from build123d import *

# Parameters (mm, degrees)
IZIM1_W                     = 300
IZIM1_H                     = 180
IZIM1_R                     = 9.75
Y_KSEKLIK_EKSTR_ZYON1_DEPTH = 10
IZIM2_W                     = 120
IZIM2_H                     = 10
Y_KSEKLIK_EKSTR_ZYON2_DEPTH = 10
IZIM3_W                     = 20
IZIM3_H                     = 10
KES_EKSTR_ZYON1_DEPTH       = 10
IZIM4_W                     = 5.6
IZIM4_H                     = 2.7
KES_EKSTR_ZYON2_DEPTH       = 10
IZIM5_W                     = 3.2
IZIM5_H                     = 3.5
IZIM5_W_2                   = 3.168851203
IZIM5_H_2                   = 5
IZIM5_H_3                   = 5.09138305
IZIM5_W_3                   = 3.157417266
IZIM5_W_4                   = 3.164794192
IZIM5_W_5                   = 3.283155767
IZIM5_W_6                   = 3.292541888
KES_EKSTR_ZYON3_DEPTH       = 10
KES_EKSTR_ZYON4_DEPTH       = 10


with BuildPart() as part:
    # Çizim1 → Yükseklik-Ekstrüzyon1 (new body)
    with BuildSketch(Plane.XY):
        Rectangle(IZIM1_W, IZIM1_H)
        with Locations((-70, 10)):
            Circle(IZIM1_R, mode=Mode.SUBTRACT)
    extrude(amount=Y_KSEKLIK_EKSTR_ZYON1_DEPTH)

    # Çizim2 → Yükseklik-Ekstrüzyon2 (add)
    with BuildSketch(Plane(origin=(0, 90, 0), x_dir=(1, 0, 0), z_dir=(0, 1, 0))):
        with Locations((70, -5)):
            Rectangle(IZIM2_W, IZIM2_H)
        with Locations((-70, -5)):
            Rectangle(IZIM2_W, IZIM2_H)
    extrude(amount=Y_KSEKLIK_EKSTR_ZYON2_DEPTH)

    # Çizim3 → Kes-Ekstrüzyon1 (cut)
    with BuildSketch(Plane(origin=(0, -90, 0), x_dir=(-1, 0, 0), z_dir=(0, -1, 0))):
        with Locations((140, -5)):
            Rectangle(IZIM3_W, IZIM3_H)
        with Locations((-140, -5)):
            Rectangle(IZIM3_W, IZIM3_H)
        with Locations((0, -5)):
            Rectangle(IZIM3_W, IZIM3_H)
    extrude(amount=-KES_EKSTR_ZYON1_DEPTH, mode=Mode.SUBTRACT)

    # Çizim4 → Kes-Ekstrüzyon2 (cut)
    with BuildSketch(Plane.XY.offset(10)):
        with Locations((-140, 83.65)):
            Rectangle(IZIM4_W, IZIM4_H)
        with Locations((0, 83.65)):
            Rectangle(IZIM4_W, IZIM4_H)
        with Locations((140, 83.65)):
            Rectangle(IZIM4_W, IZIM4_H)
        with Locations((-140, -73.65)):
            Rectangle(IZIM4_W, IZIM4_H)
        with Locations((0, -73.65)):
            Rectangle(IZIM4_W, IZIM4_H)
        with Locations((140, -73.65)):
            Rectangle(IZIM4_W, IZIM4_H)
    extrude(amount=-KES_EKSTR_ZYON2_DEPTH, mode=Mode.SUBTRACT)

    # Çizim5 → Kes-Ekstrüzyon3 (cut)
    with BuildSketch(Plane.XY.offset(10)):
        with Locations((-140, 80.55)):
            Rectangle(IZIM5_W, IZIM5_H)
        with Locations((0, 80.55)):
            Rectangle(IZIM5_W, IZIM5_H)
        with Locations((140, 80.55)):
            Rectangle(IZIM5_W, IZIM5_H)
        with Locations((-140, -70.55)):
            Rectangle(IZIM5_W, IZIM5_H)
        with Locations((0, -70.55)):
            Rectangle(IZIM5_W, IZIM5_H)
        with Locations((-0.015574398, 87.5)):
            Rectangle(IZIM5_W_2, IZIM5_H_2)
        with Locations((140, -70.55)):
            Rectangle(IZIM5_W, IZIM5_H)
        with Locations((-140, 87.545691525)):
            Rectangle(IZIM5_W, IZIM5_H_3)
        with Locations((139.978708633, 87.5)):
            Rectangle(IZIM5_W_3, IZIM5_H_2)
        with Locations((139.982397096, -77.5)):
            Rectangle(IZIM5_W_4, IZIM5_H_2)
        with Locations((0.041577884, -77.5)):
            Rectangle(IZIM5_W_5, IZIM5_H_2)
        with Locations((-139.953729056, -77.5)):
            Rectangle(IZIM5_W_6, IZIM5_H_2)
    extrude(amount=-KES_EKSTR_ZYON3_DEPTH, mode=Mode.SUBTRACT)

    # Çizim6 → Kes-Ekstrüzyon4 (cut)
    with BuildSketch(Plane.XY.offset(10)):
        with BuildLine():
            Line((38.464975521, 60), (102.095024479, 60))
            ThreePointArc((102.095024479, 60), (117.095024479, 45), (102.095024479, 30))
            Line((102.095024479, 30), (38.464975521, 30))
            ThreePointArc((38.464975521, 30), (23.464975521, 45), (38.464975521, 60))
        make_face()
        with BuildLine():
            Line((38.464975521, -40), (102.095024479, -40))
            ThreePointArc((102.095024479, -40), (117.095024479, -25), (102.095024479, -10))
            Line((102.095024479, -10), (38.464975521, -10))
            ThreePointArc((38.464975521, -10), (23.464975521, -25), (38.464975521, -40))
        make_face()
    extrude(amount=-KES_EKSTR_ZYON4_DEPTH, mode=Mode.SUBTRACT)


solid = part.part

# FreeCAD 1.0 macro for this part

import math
import FreeCAD as App
import Part
import Sketcher

V = App.Vector
Q = App.Units.Quantity


def add_polygon(sketch, points):
    """Adds a closed chain of lines whose ends are joined by coincident constraints."""
    first, n = sketch.GeometryCount, len(points)
    for a, b in zip(points, points[1:] + points[:1]):
        sketch.addGeometry(Part.LineSegment(App.Vector(*a, 0), App.Vector(*b, 0)), False)
    for i in range(n):
        sketch.addConstraint(Sketcher.Constraint("Coincident", first + i, 2, first + (i + 1) % n, 1))

doc = App.newDocument("Part")
body = doc.addObject("PartDesign::Body", "Body")

# Sketch on XY plane
sketch1 = body.newObject("Sketcher::SketchObject", "Sketch")
sketch1.AttachmentSupport = (doc.getObject("XY_Plane"), [""])
sketch1.MapMode = "FlatFace"
add_polygon(sketch1, [(-150, 90), (-150, -90), (150, -90), (150, 90)])  # lines 0-3
sketch1.addGeometry(Part.Circle(V(-70, 10, 0), V(0, 0, 1), 10), False)  # 4
sketch1.addConstraint([
    Sketcher.Constraint("Vertical", 0),
    Sketcher.Constraint("Horizontal", 1),
    Sketcher.Constraint("Vertical", 2),
    Sketcher.Constraint("Horizontal", 3),
    Sketcher.Constraint("Symmetric", 0, 2, 2, 2, -1, 1),
    Sketcher.Constraint("Diameter", 4, Q("19.5 mm")),
    Sketcher.Constraint("DistanceX", 1, 1, 1, 2, Q("300 mm")),
    Sketcher.Constraint("DistanceY", 0, 2, 0, 1, Q("180 mm")),
    Sketcher.Constraint("DistanceX", 4, 3, -1, 1, Q("70 mm")),
    Sketcher.Constraint("DistanceY", -1, 1, 4, 3, Q("10 mm")),
])
pad1 = body.newObject("PartDesign::Pad", "Pad")
pad1.Profile = sketch1
pad1.Length = 10

# Sketch on XZ plane
sketch2 = body.newObject("Sketcher::SketchObject", "Sketch001")
sketch2.AttachmentSupport = (doc.getObject("XZ_Plane"), [""])
sketch2.MapMode = "FlatFace"
sketch2.AttachmentOffset = App.Placement(V(0, 0, -90), App.Rotation())
add_polygon(sketch2, [(10, 0), (10, 10), (130, 10), (130, 0)])  # lines 0-3
add_polygon(sketch2, [(-130, 0), (-130, 10), (-10, 10), (-10, 0)])  # lines 4-7
sketch2.addConstraint([
    Sketcher.Constraint("Vertical", 0),
    Sketcher.Constraint("Horizontal", 1),
    Sketcher.Constraint("Vertical", 2),
    Sketcher.Constraint("Horizontal", 3),
    Sketcher.Constraint("Vertical", 4),
    Sketcher.Constraint("Horizontal", 5),
    Sketcher.Constraint("Vertical", 6),
    Sketcher.Constraint("Horizontal", 7),
    Sketcher.Constraint("Symmetric", 3, 2, 6, 2, -1, 1),
    Sketcher.Constraint("Symmetric", 1, 2, 4, 2, -2),
    Sketcher.Constraint("PointOnObject", 2, 2, -1),
    Sketcher.Constraint("DistanceX", 1, 1, 1, 2, Q("120 mm")),
    Sketcher.Constraint("DistanceY", 0, 1, 0, 2, Q("10 mm")),
    Sketcher.Constraint("DistanceX", -1, 1, 0, 2, Q("10 mm")),
])
pad2 = body.newObject("PartDesign::Pad", "Pad001")
pad2.Profile = sketch2
pad2.Length = 10
pad2.Reversed = True

# Sketch on XZ plane
sketch3 = body.newObject("Sketcher::SketchObject", "Sketch002")
sketch3.AttachmentSupport = (doc.getObject("XZ_Plane"), [""])
sketch3.MapMode = "FlatFace"
sketch3.AttachmentOffset = App.Placement(V(0, 0, 90), App.Rotation())
add_polygon(sketch3, [(-130, 0), (-130, 10), (-150, 10), (-150, 0)])  # lines 0-3
add_polygon(sketch3, [(150, 0), (150, 10), (130, 10), (130, 0)])  # lines 4-7
add_polygon(sketch3, [(10, 0), (10, 10), (-10, 10), (-10, 0)])  # lines 8-11
sketch3.addConstraint([
    Sketcher.Constraint("Vertical", 0),
    Sketcher.Constraint("Horizontal", 1),
    Sketcher.Constraint("Vertical", 2),
    Sketcher.Constraint("Horizontal", 3),
    Sketcher.Constraint("Vertical", 4),
    Sketcher.Constraint("Horizontal", 5),
    Sketcher.Constraint("Vertical", 6),
    Sketcher.Constraint("Horizontal", 7),
    Sketcher.Constraint("Vertical", 8),
    Sketcher.Constraint("Horizontal", 9),
    Sketcher.Constraint("Vertical", 10),
    Sketcher.Constraint("Horizontal", 11),
    Sketcher.Constraint("Symmetric", 3, 2, 6, 2, -1, 1),
    Sketcher.Constraint("Symmetric", 10, 2, 11, 2, -1, 1),
    Sketcher.Constraint("Symmetric", 1, 2, 4, 2, -2),
    Sketcher.Constraint("PointOnObject", 2, 2, -1),
    Sketcher.Constraint("Horizontal", 5, 2, 8, 2),
    Sketcher.Constraint("Equal", 7, 9),
    Sketcher.Constraint("DistanceX", 1, 2, 1, 1, Q("20 mm")),
    Sketcher.Constraint("DistanceY", 0, 1, 0, 2, Q("10 mm")),
    Sketcher.Constraint("DistanceX", 0, 2, -1, 1, Q("130 mm")),
])
pocket1 = body.newObject("PartDesign::Pocket", "Pocket")
pocket1.Profile = sketch3
pocket1.Length = 10

# Sketch on XY plane
sketch4 = body.newObject("Sketcher::SketchObject", "Sketch003")
sketch4.AttachmentSupport = (doc.getObject("XY_Plane"), [""])
sketch4.MapMode = "FlatFace"
sketch4.AttachmentOffset = App.Placement(V(0, 0, 10), App.Rotation())
add_polygon(sketch4, [(-142.8, 85), (-142.8, 82.3), (-137.2, 82.3), (-137.2, 85)])  # lines 0-3
add_polygon(sketch4, [(-2.8, 85), (-2.8, 82.3), (2.8, 82.3), (2.8, 85)])  # lines 4-7
add_polygon(sketch4, [(137.2, 85), (137.2, 82.3), (142.8, 82.3), (142.8, 85)])  # lines 8-11
add_polygon(sketch4, [(-142.8, -72.3), (-142.8, -75), (-137.2, -75), (-137.2, -72.3)])  # lines 12-15
add_polygon(sketch4, [(-2.8, -72.3), (-2.8, -75), (2.8, -75), (2.8, -72.3)])  # lines 16-19
add_polygon(sketch4, [(137.2, -72.3), (137.2, -75), (142.8, -75), (142.8, -72.3)])  # lines 20-23
sketch4.addConstraint([
    Sketcher.Constraint("Vertical", 0),
    Sketcher.Constraint("Horizontal", 1),
    Sketcher.Constraint("Vertical", 2),
    Sketcher.Constraint("Horizontal", 3),
    Sketcher.Constraint("Vertical", 4),
    Sketcher.Constraint("Horizontal", 5),
    Sketcher.Constraint("Vertical", 6),
    Sketcher.Constraint("Horizontal", 7),
    Sketcher.Constraint("Vertical", 8),
    Sketcher.Constraint("Horizontal", 9),
    Sketcher.Constraint("Vertical", 10),
    Sketcher.Constraint("Horizontal", 11),
    Sketcher.Constraint("Vertical", 12),
    Sketcher.Constraint("Horizontal", 13),
    Sketcher.Constraint("Vertical", 14),
    Sketcher.Constraint("Horizontal", 15),
    Sketcher.Constraint("Vertical", 16),
    Sketcher.Constraint("Horizontal", 17),
    Sketcher.Constraint("Vertical", 18),
    Sketcher.Constraint("Horizontal", 19),
    Sketcher.Constraint("Vertical", 20),
    Sketcher.Constraint("Horizontal", 21),
    Sketcher.Constraint("Vertical", 22),
    Sketcher.Constraint("Horizontal", 23),
    Sketcher.Constraint("Symmetric", 1, 2, 8, 2, -2),
    Sketcher.Constraint("Symmetric", 3, 2, 10, 2, -2),
    Sketcher.Constraint("Symmetric", 13, 2, 20, 2, -2),
    Sketcher.Constraint("Symmetric", 15, 2, 22, 2, -2),
    Sketcher.Constraint("Horizontal", 1, 2, 4, 2),
    Sketcher.Constraint("Horizontal", 3, 2, 6, 2),
    Sketcher.Constraint("Horizontal", 13, 2, 16, 2),
    Sketcher.Constraint("Horizontal", 15, 2, 18, 2),
    Sketcher.Constraint("Vertical", 3, 2, 12, 2),
    Sketcher.Constraint("Vertical", 2, 2, 13, 2),
    Sketcher.Constraint("Vertical", 7, 2, 16, 2),
    Sketcher.Constraint("Vertical", 6, 2, 17, 2),
    Sketcher.Constraint("Equal", 3, 5),
    Sketcher.Constraint("Equal", 10, 12),
    Sketcher.Constraint("DistanceX", 1, 1, 1, 2, Q("5.6 mm")),
    Sketcher.Constraint("DistanceY", 0, 2, 0, 1, Q("2.7 mm")),
    Sketcher.Constraint("DistanceY", -1, 1, 2, 2, Q("85 mm")),
    Sketcher.Constraint("DistanceY", 12, 2, -1, 1, Q("75 mm")),
    Sketcher.Constraint("DistanceX", 0, 2, 4, 2, Q("140 mm")),
    Sketcher.Constraint("DistanceX", 4, 2, 8, 2, Q("140 mm")),
])
pocket2 = body.newObject("PartDesign::Pocket", "Pocket001")
pocket2.Profile = sketch4
pocket2.Length = 10

# Sketch on XY plane
sketch5 = body.newObject("Sketcher::SketchObject", "Sketch004")
sketch5.AttachmentSupport = (doc.getObject("XY_Plane"), [""])
sketch5.MapMode = "FlatFace"
sketch5.AttachmentOffset = App.Placement(V(0, 0, 10), App.Rotation())
add_polygon(sketch5, [(-141.6, 82.3), (-141.6, 78.8), (-138.4, 78.8), (-138.4, 82.3)])  # lines 0-3
add_polygon(sketch5, [(-1.6, 82.3), (-1.6, 78.8), (1.6, 78.8), (1.6, 82.3)])  # lines 4-7
add_polygon(sketch5, [(138.4, 82.3), (138.4, 78.8), (141.6, 78.8), (141.6, 82.3)])  # lines 8-11
add_polygon(sketch5, [(-141.6, -68.8), (-141.6, -72.3), (-138.4, -72.3), (-138.4, -68.8)])  # lines 12-15
add_polygon(sketch5, [(-1.6, -68.8), (-1.6, -72.3), (1.6, -72.3), (1.6, -68.8)])  # lines 16-19
add_polygon(sketch5, [(-1.6, 90), (-1.6, 85), (1.6, 85), (1.6, 90)])  # lines 20-23
add_polygon(sketch5, [(138.4, -68.8), (138.4, -72.3), (141.6, -72.3), (141.6, -68.8)])  # lines 24-27
add_polygon(sketch5, [(-141.6, 90.1), (-141.6, 85), (-138.4, 85), (-138.4, 90.1)])  # lines 28-31
add_polygon(sketch5, [(138.4, 90), (138.4, 85), (141.6, 85), (141.6, 90)])  # lines 32-35
add_polygon(sketch5, [(138.4, -75), (138.4, -80), (141.6, -80), (141.6, -75)])  # lines 36-39
add_polygon(sketch5, [(-1.6, -75), (-1.6, -80), (1.7, -80), (1.7, -75)])  # lines 40-43
add_polygon(sketch5, [(-141.6, -75), (-141.6, -80), (-138.3, -80), (-138.3, -75)])  # lines 44-47
sketch5.addConstraint([
    Sketcher.Constraint("Vertical", 0),
    Sketcher.Constraint("Horizontal", 1),
    Sketcher.Constraint("Vertical", 2),
    Sketcher.Constraint("Horizontal", 3),
    Sketcher.Constraint("Vertical", 4),
    Sketcher.Constraint("Horizontal", 5),
    Sketcher.Constraint("Vertical", 6),
    Sketcher.Constraint("Horizontal", 7),
    Sketcher.Constraint("Vertical", 8),
    Sketcher.Constraint("Horizontal", 9),
    Sketcher.Constraint("Vertical", 10),
    Sketcher.Constraint("Horizontal", 11),
    Sketcher.Constraint("Vertical", 12),
    Sketcher.Constraint("Horizontal", 13),
    Sketcher.Constraint("Vertical", 14),
    Sketcher.Constraint("Horizontal", 15),
    Sketcher.Constraint("Vertical", 16),
    Sketcher.Constraint("Horizontal", 17),
    Sketcher.Constraint("Vertical", 18),
    Sketcher.Constraint("Horizontal", 19),
    Sketcher.Constraint("Vertical", 20),
    Sketcher.Constraint("Horizontal", 21),
    Sketcher.Constraint("Vertical", 22),
    Sketcher.Constraint("Horizontal", 23),
    Sketcher.Constraint("Vertical", 24),
    Sketcher.Constraint("Horizontal", 25),
    Sketcher.Constraint("Vertical", 26),
    Sketcher.Constraint("Horizontal", 27),
    Sketcher.Constraint("Vertical", 28),
    Sketcher.Constraint("Horizontal", 29),
    Sketcher.Constraint("Vertical", 30),
    Sketcher.Constraint("Horizontal", 31),
    Sketcher.Constraint("Vertical", 32),
    Sketcher.Constraint("Horizontal", 33),
    Sketcher.Constraint("Vertical", 34),
    Sketcher.Constraint("Horizontal", 35),
    Sketcher.Constraint("Vertical", 36),
    Sketcher.Constraint("Horizontal", 37),
    Sketcher.Constraint("Vertical", 38),
    Sketcher.Constraint("Horizontal", 39),
    Sketcher.Constraint("Vertical", 40),
    Sketcher.Constraint("Horizontal", 41),
    Sketcher.Constraint("Vertical", 42),
    Sketcher.Constraint("Horizontal", 43),
    Sketcher.Constraint("Vertical", 44),
    Sketcher.Constraint("Horizontal", 45),
    Sketcher.Constraint("Vertical", 46),
    Sketcher.Constraint("Horizontal", 47),
    Sketcher.Constraint("Symmetric", 1, 2, 8, 2, -2),
    Sketcher.Constraint("Symmetric", 3, 2, 10, 2, -2),
    Sketcher.Constraint("Symmetric", 13, 2, 24, 2, -2),
    Sketcher.Constraint("Symmetric", 15, 2, 26, 2, -2),
    Sketcher.Constraint("Symmetric", 29, 2, 32, 2, -2),
    Sketcher.Constraint("Horizontal", 1, 2, 4, 2),
    Sketcher.Constraint("Horizontal", 3, 2, 6, 2),
    Sketcher.Constraint("Horizontal", 13, 2, 16, 2),
    Sketcher.Constraint("Horizontal", 15, 2, 18, 2),
    Sketcher.Constraint("Horizontal", 21, 2, 28, 2),
    Sketcher.Constraint("Horizontal", 23, 2, 34, 2),
    Sketcher.Constraint("Horizontal", 37, 2, 40, 2),
    Sketcher.Constraint("Horizontal", 39, 2, 42, 2),
    Sketcher.Constraint("Horizontal", 41, 2, 44, 2),
    Sketcher.Constraint("Horizontal", 43, 2, 46, 2),
    Sketcher.Constraint("Vertical", 3, 2, 12, 2),
    Sketcher.Constraint("Vertical", 2, 2, 13, 2),
    Sketcher.Constraint("Vertical", 7, 2, 16, 2),
    Sketcher.Constraint("Vertical", 6, 2, 17, 2),
    Sketcher.Constraint("Vertical", 19, 2, 20, 2),
    Sketcher.Constraint("Vertical", 15, 2, 28, 2),
    Sketcher.Constraint("Vertical", 14, 2, 29, 2),
    Sketcher.Constraint("Vertical", 35, 2, 36, 2),
    Sketcher.Constraint("Vertical", 23, 2, 40, 2),
    Sketcher.Constraint("Vertical", 31, 2, 44, 2),
    Sketcher.Constraint("Equal", 3, 5),
    Sketcher.Constraint("Equal", 10, 12),
    Sketcher.Constraint("Equal", 34, 36),
    Sketcher.Constraint("DistanceY", 20, 2, 20, 1, Q("5 mm")),
    Sketcher.Constraint("DistanceX", 1, 1, 1, 2, Q("3.2 mm")),
    Sketcher.Constraint("DistanceY", 0, 2, 0, 1, Q("3.5 mm")),
    Sketcher.Constraint("DistanceY", -1, 1, 20, 2, Q("85 mm")),
    Sketcher.Constraint("DistanceY", 36, 2, -1, 1, Q("80 mm")),
    Sketcher.Constraint("DistanceX", 0, 2, 4, 2, Q("140 mm")),
    Sketcher.Constraint("DistanceX", 4, 2, 8, 2, Q("140 mm")),
    Sketcher.Constraint("DistanceY", -1, 1, 0, 2, Q("78.8 mm")),
    Sketcher.Constraint("DistanceY", 12, 2, -1, 1, Q("72.3 mm")),
    Sketcher.Constraint("DistanceX", 21, 1, 21, 2, Q("3.168851 mm")),
    Sketcher.Constraint("DistanceX", 45, 1, 45, 2, Q("3.292542 mm")),
    Sketcher.Constraint("DistanceX", 33, 1, 33, 2, Q("3.157417 mm")),
    Sketcher.Constraint("DistanceX", 37, 1, 37, 2, Q("3.164794 mm")),
    Sketcher.Constraint("DistanceX", 41, 1, 41, 2, Q("3.283156 mm")),
    Sketcher.Constraint("DistanceY", 28, 2, 28, 1, Q("5.091383 mm")),
])
pocket3 = body.newObject("PartDesign::Pocket", "Pocket002")
pocket3.Profile = sketch5
pocket3.Length = 10

# Sketch on XY plane
sketch6 = body.newObject("Sketcher::SketchObject", "Sketch005")
sketch6.AttachmentSupport = (doc.getObject("XY_Plane"), [""])
sketch6.MapMode = "FlatFace"
sketch6.AttachmentOffset = App.Placement(V(0, 0, 10), App.Rotation())
sketch6.addGeometry([
    Part.LineSegment(V(102, 60, 0), V(38, 60, 0)),  # 0
    Part.ArcOfCircle(Part.Circle(V(38, 45, 0), V(0, 0, 1), 15), math.radians(90), math.radians(270)),  # 1
    Part.LineSegment(V(38, 30, 0), V(102, 30, 0)),  # 2
    Part.ArcOfCircle(Part.Circle(V(102, 45, 0), V(0, 0, 1), 15), math.radians(-90), math.radians(90)),  # 3
    Part.LineSegment(V(38, -40, 0), V(102, -40, 0)),  # 4
    Part.ArcOfCircle(Part.Circle(V(102, -25, 0), V(0, 0, 1), 15), math.radians(-90), math.radians(90)),  # 5
    Part.LineSegment(V(102, -10, 0), V(38, -10, 0)),  # 6
    Part.ArcOfCircle(Part.Circle(V(38, -25, 0), V(0, 0, 1), 15), math.radians(90), math.radians(270)),  # 7
], False)
sketch6.addConstraint([
    Sketcher.Constraint("Tangent", 0, 2, 1, 1),
    Sketcher.Constraint("Tangent", 1, 2, 2, 1),
    Sketcher.Constraint("Tangent", 2, 2, 3, 1),
    Sketcher.Constraint("Tangent", 3, 2, 0, 1),
    Sketcher.Constraint("Tangent", 4, 2, 5, 1),
    Sketcher.Constraint("Tangent", 5, 2, 6, 1),
    Sketcher.Constraint("Tangent", 6, 2, 7, 1),
    Sketcher.Constraint("Tangent", 7, 2, 4, 1),
    Sketcher.Constraint("Horizontal", 0),
    Sketcher.Constraint("Horizontal", 2),
    Sketcher.Constraint("Horizontal", 4),
    Sketcher.Constraint("Horizontal", 6),
    Sketcher.Constraint("Equal", 3, 5),
    Sketcher.Constraint("Vertical", 3, 3, 5, 3),
    Sketcher.Constraint("Vertical", 1, 3, 7, 3),
    Sketcher.Constraint("Radius", 1, Q("15 mm")),
    Sketcher.Constraint("DistanceY", -1, 1, 1, 3, Q("45 mm")),
    Sketcher.Constraint("DistanceY", 5, 3, -1, 1, Q("25 mm")),
    Sketcher.Constraint("DistanceX", 0, 2, 0, 1, Q("63.630049 mm")),
    Sketcher.Constraint("DistanceX", -1, 1, 1, 3, Q("38.464976 mm")),
])
pocket4 = body.newObject("PartDesign::Pocket", "Pocket003")
pocket4.Profile = sketch6
pocket4.Length = 10

doc.recompute()
